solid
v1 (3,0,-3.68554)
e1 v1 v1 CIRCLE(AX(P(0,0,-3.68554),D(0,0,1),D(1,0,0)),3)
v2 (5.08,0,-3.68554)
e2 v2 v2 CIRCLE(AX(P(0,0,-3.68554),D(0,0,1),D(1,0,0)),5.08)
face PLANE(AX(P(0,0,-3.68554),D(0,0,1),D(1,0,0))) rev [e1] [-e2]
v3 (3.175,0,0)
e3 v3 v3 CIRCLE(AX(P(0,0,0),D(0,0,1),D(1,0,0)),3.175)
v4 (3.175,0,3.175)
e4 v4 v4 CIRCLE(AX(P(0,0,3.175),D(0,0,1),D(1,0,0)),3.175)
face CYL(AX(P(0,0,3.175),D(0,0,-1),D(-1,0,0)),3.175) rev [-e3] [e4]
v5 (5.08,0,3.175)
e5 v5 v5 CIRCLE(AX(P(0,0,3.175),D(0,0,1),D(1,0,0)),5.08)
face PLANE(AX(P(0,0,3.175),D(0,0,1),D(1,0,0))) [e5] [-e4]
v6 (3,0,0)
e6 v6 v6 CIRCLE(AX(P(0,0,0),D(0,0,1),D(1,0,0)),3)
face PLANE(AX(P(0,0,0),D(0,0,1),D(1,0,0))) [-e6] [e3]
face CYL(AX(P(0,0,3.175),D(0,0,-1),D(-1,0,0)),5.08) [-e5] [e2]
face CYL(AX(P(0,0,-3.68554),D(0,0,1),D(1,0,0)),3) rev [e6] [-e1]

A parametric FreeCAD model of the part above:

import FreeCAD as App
import Part
import Sketcher

V = App.Vector
Q = App.Units.Quantity

doc = App.newDocument("Part")
params = doc.addObject("Spreadsheet::Sheet", "Params")
for row, (alias, value) in enumerate([
    ("sketch1_diameter", "0.4 in"),
    ("sketch1_diameter2", "0.25 in"),
    ("pad1_length", "0.125 in"),
    ("sketch2_diameter", "0.4 in"),
    ("pad2_length", "0.1451 in"),
], start=1):
    params.set(f"A{row}", alias)
    params.set(f"B{row}", "=" + value)
    params.setAlias(f"B{row}", alias)

body = doc.addObject("PartDesign::Body", "Body")

sketch1 = body.newObject("Sketcher::SketchObject", "Sketch")
sketch1.AttachmentSupport = (doc.getObject("XY_Plane"), [""])
sketch1.MapMode = "FlatFace"
sketch1.addGeometry(Part.Circle(V(0, 0, 0), V(0, 0, 1), 5.1), False)
sketch1.addGeometry(Part.Circle(V(0, 0, 0), V(0, 0, 1), 3.2), False)
sketch1.addConstraint(Sketcher.Constraint("Coincident", 0, 3, -1, 1))
sketch1.addConstraint(Sketcher.Constraint("Coincident", 1, 3, -1, 1))
sketch1.addConstraint(Sketcher.Constraint("Diameter", 0, Q("0.4 in")))
sketch1.addConstraint(Sketcher.Constraint("Diameter", 1, Q("0.25 in")))
sketch1.setExpression("Constraints[2]", "Params.sketch1_diameter")
sketch1.setExpression("Constraints[3]", "Params.sketch1_diameter2")
pad1 = body.newObject("PartDesign::Pad", "Pad")
pad1.Profile = sketch1
pad1.setExpression("Length", "Params.pad1_length")

sketch2 = body.newObject("Sketcher::SketchObject", "Sketch001")
sketch2.AttachmentSupport = (doc.getObject("XY_Plane"), [""])
sketch2.MapMode = "FlatFace"
sketch2.AttachmentOffset = App.Placement(V(0, 0, -0.1451 * 25.4), App.Rotation())
sketch2.addGeometry(Part.Circle(V(0, 0, 0), V(0, 0, 1), 5.1), False)
sketch2.addGeometry(Part.Circle(V(0, 0, 0), V(0, 0, 1), 3), False)
sketch2.addConstraint(Sketcher.Constraint("Coincident", 0, 3, -1, 1))
sketch2.addConstraint(Sketcher.Constraint("Coincident", 1, 3, -1, 1))
sketch2.addConstraint(Sketcher.Constraint("Diameter", 0, Q("0.4 in")))
sketch2.addConstraint(Sketcher.Constraint("Diameter", 1, 6.0))
sketch2.setExpression("Constraints[2]", "Params.sketch2_diameter")
pad2 = body.newObject("PartDesign::Pad", "Pad001")
pad2.Profile = sketch2
pad2.setExpression("Length", "Params.pad2_length")

doc.recompute()
